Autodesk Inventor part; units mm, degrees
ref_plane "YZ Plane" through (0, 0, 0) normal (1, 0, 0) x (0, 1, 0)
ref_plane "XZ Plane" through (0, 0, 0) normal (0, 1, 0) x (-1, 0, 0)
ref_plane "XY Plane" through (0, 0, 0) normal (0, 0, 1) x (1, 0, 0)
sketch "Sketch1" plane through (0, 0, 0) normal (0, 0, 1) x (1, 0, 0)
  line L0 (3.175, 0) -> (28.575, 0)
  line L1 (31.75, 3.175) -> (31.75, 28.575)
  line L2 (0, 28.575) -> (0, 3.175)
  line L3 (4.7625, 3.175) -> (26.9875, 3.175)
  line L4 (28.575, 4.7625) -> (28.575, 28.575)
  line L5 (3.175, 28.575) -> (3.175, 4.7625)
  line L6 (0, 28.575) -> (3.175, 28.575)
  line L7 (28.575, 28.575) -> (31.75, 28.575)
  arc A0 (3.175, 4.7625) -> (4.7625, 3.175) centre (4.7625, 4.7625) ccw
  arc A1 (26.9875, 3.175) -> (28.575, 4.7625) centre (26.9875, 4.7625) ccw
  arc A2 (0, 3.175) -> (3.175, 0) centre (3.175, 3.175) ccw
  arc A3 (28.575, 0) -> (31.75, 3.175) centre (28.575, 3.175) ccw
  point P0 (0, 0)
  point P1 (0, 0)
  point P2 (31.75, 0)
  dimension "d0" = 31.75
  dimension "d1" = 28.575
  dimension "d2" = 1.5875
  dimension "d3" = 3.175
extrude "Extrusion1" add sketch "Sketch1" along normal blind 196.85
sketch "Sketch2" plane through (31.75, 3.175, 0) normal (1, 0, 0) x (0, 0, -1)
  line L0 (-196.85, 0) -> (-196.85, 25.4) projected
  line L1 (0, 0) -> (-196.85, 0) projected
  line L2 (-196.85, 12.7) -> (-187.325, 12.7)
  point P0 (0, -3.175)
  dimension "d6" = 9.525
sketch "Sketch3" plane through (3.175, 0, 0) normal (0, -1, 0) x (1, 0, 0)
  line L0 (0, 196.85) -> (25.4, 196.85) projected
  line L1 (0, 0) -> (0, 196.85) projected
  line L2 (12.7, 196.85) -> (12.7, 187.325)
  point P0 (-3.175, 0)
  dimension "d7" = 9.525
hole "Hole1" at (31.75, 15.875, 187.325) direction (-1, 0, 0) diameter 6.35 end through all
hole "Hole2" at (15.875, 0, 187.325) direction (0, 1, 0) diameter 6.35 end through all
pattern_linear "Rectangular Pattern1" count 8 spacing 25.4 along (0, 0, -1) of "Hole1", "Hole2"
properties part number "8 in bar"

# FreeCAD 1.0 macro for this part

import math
import FreeCAD as App
import Part
import Sketcher

V = App.Vector
Q = App.Units.Quantity

doc = App.newDocument("Part")
params = doc.addObject("Spreadsheet::Sheet", "Params")
for row, (alias, value) in enumerate([
    ("sketch1_radius", "0.125 in"),
    ("sketch1_radius2", "0.0625 in"),
    ("sketch1_width", "1 in"),
    ("pad1_length", "7.75 in"),
    ("sketch2_diameter", "0.25 in"),
    ("hole_diameter", "0.25 in"),
    ("sketch3_diameter", "0.25 in"),
    ("hole2_diameter", "0.25 in"),
    ("linearpattern_pitch", "1 in"),
], start=1):
    params.set(f"A{row}", alias)
    params.set(f"B{row}", "=" + value)
    params.setAlias(f"B{row}", alias)

body = doc.addObject("PartDesign::Body", "Body")

sketch1 = body.newObject("Sketcher::SketchObject", "Sketch")
sketch1.AttachmentSupport = (doc.getObject("XY_Plane"), [""])
sketch1.MapMode = "FlatFace"
sketch1.addGeometry([
    Part.ArcOfCircle(Part.Circle(V(3.2, 3.2, 0), V(0, 0, 1), 3.2), math.radians(180), math.radians(270)),
    Part.LineSegment(V(3.2, 0, 0), V(28.6, 0, 0)),
    Part.ArcOfCircle(Part.Circle(V(28.6, 3.2, 0), V(0, 0, 1), 3.2), math.radians(-90), math.radians(0)),
    Part.LineSegment(V(31.8, 3.2, 0), V(31.8, 28.6, 0)),
    Part.LineSegment(V(31.8, 28.6, 0), V(28.6, 28.6, 0)),
    Part.LineSegment(V(28.6, 28.6, 0), V(28.6, 4.8, 0)),
    Part.ArcOfCircle(Part.Circle(V(27, 4.8, 0), V(0, 0, 1), 1.6), math.radians(-90), math.radians(0)),
    Part.LineSegment(V(27, 3.2, 0), V(4.8, 3.2, 0)),
    Part.ArcOfCircle(Part.Circle(V(4.8, 4.8, 0), V(0, 0, 1), 1.6), math.radians(180), math.radians(270)),
    Part.LineSegment(V(3.2, 4.8, 0), V(3.2, 28.6, 0)),
    Part.LineSegment(V(3.2, 28.6, 0), V(0, 28.6, 0)),
    Part.LineSegment(V(0, 28.6, 0), V(0, 3.2, 0)),
], False)
sketch1.addConstraint([
    Sketcher.Constraint("Tangent", 0, 2, 1, 1),
    Sketcher.Constraint("Tangent", 1, 2, 2, 1),
    Sketcher.Constraint("Tangent", 2, 2, 3, 1),
    Sketcher.Constraint("Coincident", 3, 2, 4, 1),
    Sketcher.Constraint("Coincident", 4, 2, 5, 1),
    Sketcher.Constraint("Tangent", 5, 2, 6, 2),
    Sketcher.Constraint("Tangent", 6, 1, 7, 1),
    Sketcher.Constraint("Tangent", 7, 2, 8, 2),
    Sketcher.Constraint("Tangent", 8, 1, 9, 1),
    Sketcher.Constraint("Coincident", 9, 2, 10, 1),
    Sketcher.Constraint("Coincident", 10, 2, 11, 1),
    Sketcher.Constraint("Tangent", 11, 2, 0, 1),
    Sketcher.Constraint("Horizontal", 1),
    Sketcher.Constraint("Vertical", 3),
    Sketcher.Constraint("Horizontal", 4),
    Sketcher.Constraint("Vertical", 5),
    Sketcher.Constraint("Horizontal", 7),
    Sketcher.Constraint("Vertical", 9),
    Sketcher.Constraint("Horizontal", 10),
    Sketcher.Constraint("Vertical", 11),
    Sketcher.Constraint("Equal", 0, 2),
    Sketcher.Constraint("Equal", 6, 8),
    Sketcher.Constraint("PointOnObject", 0, 2, -1),
    Sketcher.Constraint("PointOnObject", 10, 2, -2),
    Sketcher.Constraint("Horizontal", 2, 2, 6, 1),
    Sketcher.Constraint("Horizontal", 4, 2, 9, 2),
    Sketcher.Constraint("Vertical", 1, 2, 4, 2),
    Sketcher.Constraint("Vertical", 0, 2, 8, 1),
    Sketcher.Constraint("Equal", 1, 3),
    Sketcher.Constraint("Radius", 0, Q("0.125 in")),
    Sketcher.Constraint("Radius", 6, Q("0.0625 in")),
    Sketcher.Constraint("DistanceX", 1, 1, 1, 2, Q("1 in")),
])
sketch1.setExpression("Constraints[29]", "Params.sketch1_radius")
sketch1.setExpression("Constraints[30]", "Params.sketch1_radius2")
sketch1.setExpression("Constraints[31]", "Params.sketch1_width")
pad1 = body.newObject("PartDesign::Pad", "Pad")
pad1.Profile = sketch1
pad1.setExpression("Length", "Params.pad1_length")

sketch2 = body.newObject("Sketcher::SketchObject", "Sketch001")
sketch2.AttachmentSupport = (doc.getObject("YZ_Plane"), [""])
sketch2.MapMode = "FlatFace"
sketch2.AttachmentOffset = App.Placement(V(0, 0, 1.25 * 25.4), App.Rotation())
sketch2.addGeometry(Part.Circle(V(15.9, 187.3, 0), V(0, 0, 1), 3.2), False)
sketch2.addConstraint([
    Sketcher.Constraint("Diameter", 0, Q("0.25 in")),
    Sketcher.Constraint("DistanceX", -1, 1, 0, 3, Q("0.625 in")),
    Sketcher.Constraint("DistanceY", -1, 1, 0, 3, Q("7.375 in")),
])
sketch2.setExpression("Constraints[0]", "Params.sketch2_diameter")
doc.recompute()
hole = body.newObject("PartDesign::Hole", "Hole")
hole.Profile = sketch2
hole.ThreadType = "None"
hole.setExpression("Diameter", "Params.hole_diameter")
hole.DepthType = "ThroughAll"

sketch3 = body.newObject("Sketcher::SketchObject", "Sketch002")
sketch3.AttachmentSupport = (doc.getObject("XZ_Plane"), [""])
sketch3.MapMode = "FlatFace"
sketch3.addGeometry(Part.Circle(V(15.9, 187.3, 0), V(0, 0, 1), 3.2), False)
sketch3.addConstraint([
    Sketcher.Constraint("Diameter", 0, Q("0.25 in")),
    Sketcher.Constraint("DistanceX", -1, 1, 0, 3, Q("0.625 in")),
    Sketcher.Constraint("DistanceY", -1, 1, 0, 3, Q("7.375 in")),
])
sketch3.setExpression("Constraints[0]", "Params.sketch3_diameter")
doc.recompute()
hole2 = body.newObject("PartDesign::Hole", "Hole001")
hole2.Profile = sketch3
hole2.ThreadType = "None"
hole2.setExpression("Diameter", "Params.hole2_diameter")
hole2.DepthType = "ThroughAll"
doc.recompute()

linearpattern = body.newObject("PartDesign::LinearPattern", "LinearPattern")
linearpattern.Originals = [hole, hole2]
linearpattern.Direction = (doc.getObject("Z_Axis"), [""])
linearpattern.Mode = "offset"
linearpattern.setExpression("Offset", "Params.linearpattern_pitch")
linearpattern.Occurrences = 8
linearpattern.Reversed = True
body.Tip = linearpattern

doc.recompute()
